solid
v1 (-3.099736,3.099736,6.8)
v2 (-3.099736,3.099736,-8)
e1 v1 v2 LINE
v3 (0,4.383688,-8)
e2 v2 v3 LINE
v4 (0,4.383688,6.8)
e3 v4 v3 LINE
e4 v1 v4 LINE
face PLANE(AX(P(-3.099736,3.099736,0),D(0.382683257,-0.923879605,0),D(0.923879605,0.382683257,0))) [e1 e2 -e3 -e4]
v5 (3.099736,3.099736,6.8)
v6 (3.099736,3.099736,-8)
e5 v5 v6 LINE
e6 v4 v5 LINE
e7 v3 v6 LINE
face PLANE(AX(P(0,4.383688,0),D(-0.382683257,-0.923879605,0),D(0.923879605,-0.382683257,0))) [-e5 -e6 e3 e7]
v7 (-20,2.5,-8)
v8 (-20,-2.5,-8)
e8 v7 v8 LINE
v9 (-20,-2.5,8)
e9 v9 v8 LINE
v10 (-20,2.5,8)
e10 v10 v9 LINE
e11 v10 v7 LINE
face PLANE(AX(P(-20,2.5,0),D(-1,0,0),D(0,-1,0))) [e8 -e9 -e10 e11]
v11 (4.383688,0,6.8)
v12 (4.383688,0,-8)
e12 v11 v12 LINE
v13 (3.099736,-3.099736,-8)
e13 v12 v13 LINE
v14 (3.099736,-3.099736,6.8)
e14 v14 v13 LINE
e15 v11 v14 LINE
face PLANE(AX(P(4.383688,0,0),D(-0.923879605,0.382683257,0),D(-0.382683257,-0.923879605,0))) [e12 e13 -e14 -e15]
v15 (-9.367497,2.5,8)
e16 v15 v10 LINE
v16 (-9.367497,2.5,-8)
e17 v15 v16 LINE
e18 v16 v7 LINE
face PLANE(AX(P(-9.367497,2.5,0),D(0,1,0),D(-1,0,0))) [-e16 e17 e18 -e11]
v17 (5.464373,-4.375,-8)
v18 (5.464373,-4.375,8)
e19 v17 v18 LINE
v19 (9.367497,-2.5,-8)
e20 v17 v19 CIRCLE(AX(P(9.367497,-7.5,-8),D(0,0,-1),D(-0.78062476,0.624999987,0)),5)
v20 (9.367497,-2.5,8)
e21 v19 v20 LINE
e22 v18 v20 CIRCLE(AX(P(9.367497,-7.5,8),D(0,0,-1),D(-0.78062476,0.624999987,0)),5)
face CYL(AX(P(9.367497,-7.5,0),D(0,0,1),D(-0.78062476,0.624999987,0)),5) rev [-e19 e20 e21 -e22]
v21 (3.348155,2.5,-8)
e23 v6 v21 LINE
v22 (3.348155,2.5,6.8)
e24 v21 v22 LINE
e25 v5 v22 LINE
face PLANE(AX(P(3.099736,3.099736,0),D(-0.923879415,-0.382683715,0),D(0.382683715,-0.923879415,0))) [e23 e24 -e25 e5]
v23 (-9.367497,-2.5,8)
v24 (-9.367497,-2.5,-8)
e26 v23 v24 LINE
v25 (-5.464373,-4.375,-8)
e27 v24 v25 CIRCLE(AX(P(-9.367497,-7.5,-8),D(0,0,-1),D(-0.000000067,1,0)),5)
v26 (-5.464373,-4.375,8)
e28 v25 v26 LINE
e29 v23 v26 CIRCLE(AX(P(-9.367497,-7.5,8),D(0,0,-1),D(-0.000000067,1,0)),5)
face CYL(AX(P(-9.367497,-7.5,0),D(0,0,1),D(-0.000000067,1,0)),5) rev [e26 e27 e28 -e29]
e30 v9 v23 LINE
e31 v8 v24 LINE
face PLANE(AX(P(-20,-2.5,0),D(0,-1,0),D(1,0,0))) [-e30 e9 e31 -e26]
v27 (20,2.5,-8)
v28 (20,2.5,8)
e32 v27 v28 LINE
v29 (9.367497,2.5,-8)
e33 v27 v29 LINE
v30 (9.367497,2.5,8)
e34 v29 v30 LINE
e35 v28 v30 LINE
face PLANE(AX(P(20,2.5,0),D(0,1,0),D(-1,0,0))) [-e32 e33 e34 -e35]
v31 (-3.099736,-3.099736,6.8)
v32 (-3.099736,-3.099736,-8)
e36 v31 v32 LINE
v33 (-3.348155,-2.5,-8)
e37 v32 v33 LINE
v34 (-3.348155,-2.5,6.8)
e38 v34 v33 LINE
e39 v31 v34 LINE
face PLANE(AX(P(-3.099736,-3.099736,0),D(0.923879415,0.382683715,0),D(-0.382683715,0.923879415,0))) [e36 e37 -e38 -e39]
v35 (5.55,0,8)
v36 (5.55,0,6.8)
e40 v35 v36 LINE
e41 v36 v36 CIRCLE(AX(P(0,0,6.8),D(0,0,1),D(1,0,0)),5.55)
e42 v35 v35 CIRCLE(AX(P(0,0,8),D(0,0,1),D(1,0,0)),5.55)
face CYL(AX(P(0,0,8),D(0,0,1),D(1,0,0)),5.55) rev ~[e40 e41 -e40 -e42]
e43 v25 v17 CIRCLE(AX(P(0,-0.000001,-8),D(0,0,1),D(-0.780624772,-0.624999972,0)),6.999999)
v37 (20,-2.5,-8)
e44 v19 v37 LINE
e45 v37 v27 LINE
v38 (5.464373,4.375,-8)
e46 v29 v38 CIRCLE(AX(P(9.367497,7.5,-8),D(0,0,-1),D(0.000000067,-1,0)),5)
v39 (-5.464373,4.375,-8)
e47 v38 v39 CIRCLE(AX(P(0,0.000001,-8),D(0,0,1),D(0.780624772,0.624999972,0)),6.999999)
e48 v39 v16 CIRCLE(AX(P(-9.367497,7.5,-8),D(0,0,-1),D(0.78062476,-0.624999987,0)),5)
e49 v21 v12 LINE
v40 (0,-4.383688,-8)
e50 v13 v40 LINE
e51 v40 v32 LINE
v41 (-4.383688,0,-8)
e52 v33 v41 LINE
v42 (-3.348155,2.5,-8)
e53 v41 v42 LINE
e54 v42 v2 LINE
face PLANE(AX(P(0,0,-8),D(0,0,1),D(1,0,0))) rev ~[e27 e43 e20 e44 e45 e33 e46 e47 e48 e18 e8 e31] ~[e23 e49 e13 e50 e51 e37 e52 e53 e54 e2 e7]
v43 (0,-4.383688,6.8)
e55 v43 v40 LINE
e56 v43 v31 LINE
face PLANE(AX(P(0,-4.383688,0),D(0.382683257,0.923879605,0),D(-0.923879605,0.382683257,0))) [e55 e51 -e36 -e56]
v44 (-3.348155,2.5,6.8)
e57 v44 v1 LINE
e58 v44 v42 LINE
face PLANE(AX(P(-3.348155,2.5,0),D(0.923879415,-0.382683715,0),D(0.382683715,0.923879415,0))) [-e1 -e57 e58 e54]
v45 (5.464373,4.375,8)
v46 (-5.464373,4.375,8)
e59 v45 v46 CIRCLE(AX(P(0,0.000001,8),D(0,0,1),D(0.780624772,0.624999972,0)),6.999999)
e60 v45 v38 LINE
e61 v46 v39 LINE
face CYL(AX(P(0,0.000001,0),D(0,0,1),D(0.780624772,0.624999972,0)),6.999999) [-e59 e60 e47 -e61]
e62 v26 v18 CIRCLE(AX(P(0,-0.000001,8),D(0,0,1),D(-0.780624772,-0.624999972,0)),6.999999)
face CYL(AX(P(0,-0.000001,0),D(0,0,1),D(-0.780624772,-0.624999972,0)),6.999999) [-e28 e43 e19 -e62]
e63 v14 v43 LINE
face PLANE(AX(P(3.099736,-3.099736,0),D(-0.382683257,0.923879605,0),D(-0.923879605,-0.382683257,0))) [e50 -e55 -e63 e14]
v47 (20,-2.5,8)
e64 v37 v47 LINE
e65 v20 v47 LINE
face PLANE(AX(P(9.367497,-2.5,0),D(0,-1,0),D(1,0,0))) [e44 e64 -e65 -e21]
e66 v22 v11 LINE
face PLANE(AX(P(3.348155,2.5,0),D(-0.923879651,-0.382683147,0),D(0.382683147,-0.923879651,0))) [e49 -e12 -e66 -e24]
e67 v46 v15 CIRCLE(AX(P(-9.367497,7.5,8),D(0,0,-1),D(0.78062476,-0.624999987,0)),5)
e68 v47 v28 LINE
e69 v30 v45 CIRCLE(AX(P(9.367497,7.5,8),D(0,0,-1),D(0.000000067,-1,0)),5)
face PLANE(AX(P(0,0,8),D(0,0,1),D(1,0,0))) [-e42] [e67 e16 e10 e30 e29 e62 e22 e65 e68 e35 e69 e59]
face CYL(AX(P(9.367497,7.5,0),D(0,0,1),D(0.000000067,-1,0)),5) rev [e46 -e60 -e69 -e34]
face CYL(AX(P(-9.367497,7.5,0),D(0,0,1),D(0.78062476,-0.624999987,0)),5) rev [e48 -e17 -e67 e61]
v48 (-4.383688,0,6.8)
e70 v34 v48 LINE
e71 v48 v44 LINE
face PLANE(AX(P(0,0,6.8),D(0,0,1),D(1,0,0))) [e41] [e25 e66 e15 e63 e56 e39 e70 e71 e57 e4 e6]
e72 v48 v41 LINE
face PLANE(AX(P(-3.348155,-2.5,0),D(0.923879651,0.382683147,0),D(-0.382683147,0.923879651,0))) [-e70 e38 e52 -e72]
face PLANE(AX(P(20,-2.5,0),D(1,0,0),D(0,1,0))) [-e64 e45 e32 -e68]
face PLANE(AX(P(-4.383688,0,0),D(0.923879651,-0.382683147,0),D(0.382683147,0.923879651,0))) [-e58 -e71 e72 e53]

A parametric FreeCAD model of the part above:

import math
import FreeCAD as App
import Part
import Sketcher
Q = App.Units.Quantity


def add_polygon(sketch, points):
    """Adds a closed chain of lines whose ends are joined by coincident constraints."""
    first, n = sketch.GeometryCount, len(points)
    for a, b in zip(points, points[1:] + points[:1]):
        sketch.addGeometry(Part.LineSegment(App.Vector(*a, 0), App.Vector(*b, 0)), False)
    for i in range(n):
        sketch.addConstraint(Sketcher.Constraint("Coincident", first + i, 2, first + (i + 1) % n, 1))

doc = App.newDocument("Part")
body = doc.addObject("PartDesign::Body", "Body")

sketch1 = body.newObject("Sketcher::SketchObject", "Sketch")
sketch1.AttachmentSupport = (doc.getObject("XY_Plane"), [""])
sketch1.MapMode = "FlatFace"
sketch1.addGeometry(Part.ArcOfCircle(Part.Circle(App.Vector(-9.4, -7.5, 0), App.Vector(0, 0, 1), 5), math.radians(39), math.radians(90)), False)
sketch1.addGeometry(Part.ArcOfCircle(Part.Circle(App.Vector(0, 0, 0), App.Vector(0, 0, 1), 7), math.radians(-141), math.radians(-39)), False)
sketch1.addGeometry(Part.ArcOfCircle(Part.Circle(App.Vector(9.4, -7.5, 0), App.Vector(0, 0, 1), 5), math.radians(90), math.radians(141)), False)
sketch1.addGeometry(Part.LineSegment(App.Vector(9.4, -2.5, 0), App.Vector(20, -2.5, 0)), False)
sketch1.addGeometry(Part.LineSegment(App.Vector(20, -2.5, 0), App.Vector(20, 2.5, 0)), False)
sketch1.addGeometry(Part.LineSegment(App.Vector(20, 2.5, 0), App.Vector(9.4, 2.5, 0)), False)
sketch1.addGeometry(Part.ArcOfCircle(Part.Circle(App.Vector(9.4, 7.5, 0), App.Vector(0, 0, 1), 5), math.radians(-141), math.radians(-90)), False)
sketch1.addGeometry(Part.ArcOfCircle(Part.Circle(App.Vector(0, 0, 0), App.Vector(0, 0, 1), 7), math.radians(39), math.radians(141)), False)
sketch1.addGeometry(Part.ArcOfCircle(Part.Circle(App.Vector(-9.4, 7.5, 0), App.Vector(0, 0, 1), 5), math.radians(-90), math.radians(-39)), False)
sketch1.addGeometry(Part.LineSegment(App.Vector(-9.4, 2.5, 0), App.Vector(-20, 2.5, 0)), False)
sketch1.addGeometry(Part.LineSegment(App.Vector(-20, 2.5, 0), App.Vector(-20, -2.5, 0)), False)
sketch1.addGeometry(Part.LineSegment(App.Vector(-20, -2.5, 0), App.Vector(-9.4, -2.5, 0)), False)
add_polygon(sketch1, [(3.1, 3.1), (3.3, 2.5), (4.4, 0), (3.1, -3.1), (0, -4.4), (-3.1, -3.1), (-3.3, -2.5), (-4.4, 0), (-3.3, 2.5), (-3.1, 3.1), (0, 4.4)])
sketch1.addConstraint([
    Sketcher.Constraint("Tangent", 0, 1, 1, 1),
    Sketcher.Constraint("Tangent", 1, 2, 2, 2),
    Sketcher.Constraint("Tangent", 2, 1, 3, 1),
    Sketcher.Constraint("Coincident", 3, 2, 4, 1),
    Sketcher.Constraint("Coincident", 4, 2, 5, 1),
    Sketcher.Constraint("Tangent", 5, 2, 6, 2),
    Sketcher.Constraint("Tangent", 6, 1, 7, 1),
    Sketcher.Constraint("Tangent", 7, 2, 8, 2),
    Sketcher.Constraint("Tangent", 8, 1, 9, 1),
    Sketcher.Constraint("Coincident", 9, 2, 10, 1),
    Sketcher.Constraint("Coincident", 10, 2, 11, 1),
    Sketcher.Constraint("Tangent", 11, 2, 0, 2),
    Sketcher.Constraint("Horizontal", 3),
    Sketcher.Constraint("Vertical", 4),
    Sketcher.Constraint("Horizontal", 5),
    Sketcher.Constraint("Horizontal", 9),
    Sketcher.Constraint("Vertical", 10),
    Sketcher.Constraint("Horizontal", 11),
    Sketcher.Constraint("Coincident", 1, 3, -1, 1),
    Sketcher.Constraint("Coincident", 7, 3, -1, 1),
    Sketcher.Constraint("Equal", 0, 2),
    Sketcher.Constraint("Equal", 2, 6),
    Sketcher.Constraint("Equal", 1, 7),
    Sketcher.Constraint("Equal", 6, 8),
    Sketcher.Constraint("Symmetric", 3, 2, 9, 2, -1, 1),
    Sketcher.Constraint("Symmetric", 12, 2, 17, 2, -1, 1),
    Sketcher.Constraint("Symmetric", 13, 2, 18, 2, -1, 1),
    Sketcher.Constraint("Symmetric", 14, 2, 20, 2, -1, 1),
    Sketcher.Constraint("Symmetric", 15, 2, 21, 2, -1, 1),
    Sketcher.Constraint("Symmetric", 16, 2, 22, 2, -1, 1),
    Sketcher.Constraint("Symmetric", 14, 2, 16, 2, -2),
    Sketcher.Constraint("Symmetric", 12, 2, 19, 2, -2),
    Sketcher.Constraint("PointOnObject", 13, 2, -1),
    Sketcher.Constraint("PointOnObject", 15, 2, -2),
    Sketcher.Constraint("Parallel", 12, 13),
    Sketcher.Constraint("Perpendicular", 13, 15),
    Sketcher.Constraint("Horizontal", 0, 3, 2, 3),
    Sketcher.Constraint("Horizontal", 6, 3, 8, 3),
    Sketcher.Constraint("Horizontal", 9, 2, 12, 2),
    Sketcher.Constraint("Equal", 14, 15),
    Sketcher.Constraint("Radius", 0, 5.0),
    Sketcher.Constraint("Radius", 1, 6.999999),
    Sketcher.Constraint("DistanceY", 4, 1, 4, 2, 5.0),
    Sketcher.Constraint("DistanceX", -1, 1, 3, 2, 20.0),
    Sketcher.Constraint("Angle", 12, Q("-67.499982 deg")),
    Sketcher.Constraint("Distance", 12, 0.64915),
])
pad1 = body.newObject("PartDesign::Pad", "Pad")
pad1.Profile = sketch1
pad1.Length = 16
pad1.Midplane = True

sketch2 = body.newObject("Sketcher::SketchObject", "Sketch001")
sketch2.AttachmentSupport = (doc.getObject("XY_Plane"), [""])
sketch2.MapMode = "FlatFace"
sketch2.AttachmentOffset = App.Placement(App.Vector(0, 0, 8), App.Rotation())
sketch2.addGeometry(Part.Circle(App.Vector(0, 0, 0), App.Vector(0, 0, 1), 5.5), False)
add_polygon(sketch2, [(-3.1, 3.1), (0, 4.4), (3.1, 3.1), (4.4, 0), (3.1, -3.1), (0, -4.4), (-3.1, -3.1), (-4.4, 0)])
sketch2.addConstraint([
    Sketcher.Constraint("Coincident", 0, 3, -1, 1),
    Sketcher.Constraint("Symmetric", 1, 2, 5, 2, -1, 1),
    Sketcher.Constraint("Symmetric", 2, 2, 6, 2, -1, 1),
    Sketcher.Constraint("Symmetric", 3, 2, 7, 2, -1, 1),
    Sketcher.Constraint("Symmetric", 4, 2, 8, 2, -1, 1),
    Sketcher.Constraint("Symmetric", 4, 2, 6, 2, -2),
    Sketcher.Constraint("PointOnObject", 1, 2, -2),
    Sketcher.Constraint("PointOnObject", 3, 2, -1),
    Sketcher.Constraint("Perpendicular", 1, 3),
    Sketcher.Constraint("Equal", 2, 3),
    Sketcher.Constraint("Diameter", 0, 11.1),
    Sketcher.Constraint("Angle", 1, Q("22.499989 deg")),
    Sketcher.Constraint("Distance", 1, 3.35513),
])
pocket1 = body.newObject("PartDesign::Pocket", "Pocket")
pocket1.Profile = sketch2
pocket1.Length = 1.2

doc.recompute()
